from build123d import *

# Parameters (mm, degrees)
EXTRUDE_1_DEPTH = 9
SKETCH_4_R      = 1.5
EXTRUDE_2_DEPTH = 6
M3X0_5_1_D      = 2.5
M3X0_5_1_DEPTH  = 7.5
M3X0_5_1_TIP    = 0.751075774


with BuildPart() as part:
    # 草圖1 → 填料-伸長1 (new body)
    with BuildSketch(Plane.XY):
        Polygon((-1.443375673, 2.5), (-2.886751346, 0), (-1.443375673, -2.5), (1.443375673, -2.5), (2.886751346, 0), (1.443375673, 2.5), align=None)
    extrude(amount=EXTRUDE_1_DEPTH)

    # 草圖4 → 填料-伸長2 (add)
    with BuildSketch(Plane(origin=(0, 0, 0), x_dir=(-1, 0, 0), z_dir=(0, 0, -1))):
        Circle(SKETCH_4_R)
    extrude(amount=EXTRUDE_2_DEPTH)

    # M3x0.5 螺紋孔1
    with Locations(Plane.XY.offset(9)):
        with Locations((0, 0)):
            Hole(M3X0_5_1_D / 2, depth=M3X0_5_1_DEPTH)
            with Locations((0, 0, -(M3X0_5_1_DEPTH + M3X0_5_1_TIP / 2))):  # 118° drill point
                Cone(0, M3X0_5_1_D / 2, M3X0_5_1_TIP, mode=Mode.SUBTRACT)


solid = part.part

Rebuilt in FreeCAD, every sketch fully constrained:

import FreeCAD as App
import Part
import Sketcher
from FreeCAD import Vector
Q = App.Units.Quantity


def add_polygon(sketch, points):
    """Adds a closed chain of lines whose ends are joined by coincident constraints."""
    first, n = sketch.GeometryCount, len(points)
    for a, b in zip(points, points[1:] + points[:1]):
        sketch.addGeometry(Part.LineSegment(App.Vector(*a, 0), App.Vector(*b, 0)), False)
    for i in range(n):
        sketch.addConstraint(Sketcher.Constraint("Coincident", first + i, 2, first + (i + 1) % n, 1))

doc = App.newDocument("Part")
body = doc.addObject("PartDesign::Body", "Body")

sketch1 = doc.addObject("Sketcher::SketchObject", "Sketch")
body.addObject(sketch1)
sketch1.AttachmentSupport = (doc.XY_Plane, [""])
sketch1.MapMode = "FlatFace"
add_polygon(sketch1, [(-1.4, 2.5), (-2.9, 0), (-1.4, -2.5), (1.4, -2.5), (2.9, 0), (1.4, 2.5)])
sketch1.addConstraint(Sketcher.Constraint("Horizontal", 2))
sketch1.addConstraint(Sketcher.Constraint("Horizontal", 5))
sketch1.addConstraint(Sketcher.Constraint("Symmetric", 0, 2, 3, 2, -1, 1))
sketch1.addConstraint(Sketcher.Constraint("Symmetric", 1, 2, 4, 2, -1, 1))
sketch1.addConstraint(Sketcher.Constraint("PointOnObject", 0, 2, -1))
sketch1.addConstraint(Sketcher.Constraint("Parallel", 0, 3))
sketch1.addConstraint(Sketcher.Constraint("Vertical", 2, 2, 4, 2))
sketch1.addConstraint(Sketcher.Constraint("Angle", 0, Q("-120 deg")))
sketch1.addConstraint(Sketcher.Constraint("DistanceY", 2, 2, 4, 2, Q("5 mm")))
sketch1.addConstraint(Sketcher.Constraint("DistanceX", 2, 1, 2, 2, Q("2.886751 mm")))
pad1 = doc.addObject("PartDesign::Pad", "Pad")
body.addObject(pad1)
pad1.Profile = sketch1
pad1.Length = 9

sketch2 = doc.addObject("Sketcher::SketchObject", "Sketch001")
body.addObject(sketch2)
sketch2.AttachmentSupport = (doc.XY_Plane, [""])
sketch2.MapMode = "FlatFace"
sketch2.addGeometry(Part.Circle(Vector(0, 0, 0), Vector(0, 0, 1), 1.5), False)
sketch2.addConstraint(Sketcher.Constraint("Coincident", 0, 3, -1, 1))
sketch2.addConstraint(Sketcher.Constraint("Diameter", 0, Q("3 mm")))
pad2 = doc.addObject("PartDesign::Pad", "Pad001")
body.addObject(pad2)
pad2.Profile = sketch2
pad2.Length = 6
pad2.Reversed = True

sketch3 = doc.addObject("Sketcher::SketchObject", "Sketch002")
body.addObject(sketch3)
sketch3.AttachmentSupport = (doc.XY_Plane, [""])
sketch3.MapMode = "FlatFace"
sketch3.AttachmentOffset = App.Placement(Vector(0, 0, 9), App.Rotation())
sketch3.addGeometry(Part.Circle(Vector(0, 0, 0), Vector(0, 0, 1), 1.2), False)
sketch3.addConstraint(Sketcher.Constraint("Coincident", 0, 3, -1, 1))
sketch3.addConstraint(Sketcher.Constraint("Diameter", 0, Q("2.5 mm")))
doc.recompute()
hole = doc.addObject("PartDesign::Hole", "Hole")
body.addObject(hole)
hole.Profile = sketch3
hole.ThreadType = "None"
hole.Diameter = 2.5
hole.DepthType = "Dimension"
hole.Depth = 7.5
hole.DrillPoint = "Angled"
hole.DrillPointAngle = 118

doc.recompute()
